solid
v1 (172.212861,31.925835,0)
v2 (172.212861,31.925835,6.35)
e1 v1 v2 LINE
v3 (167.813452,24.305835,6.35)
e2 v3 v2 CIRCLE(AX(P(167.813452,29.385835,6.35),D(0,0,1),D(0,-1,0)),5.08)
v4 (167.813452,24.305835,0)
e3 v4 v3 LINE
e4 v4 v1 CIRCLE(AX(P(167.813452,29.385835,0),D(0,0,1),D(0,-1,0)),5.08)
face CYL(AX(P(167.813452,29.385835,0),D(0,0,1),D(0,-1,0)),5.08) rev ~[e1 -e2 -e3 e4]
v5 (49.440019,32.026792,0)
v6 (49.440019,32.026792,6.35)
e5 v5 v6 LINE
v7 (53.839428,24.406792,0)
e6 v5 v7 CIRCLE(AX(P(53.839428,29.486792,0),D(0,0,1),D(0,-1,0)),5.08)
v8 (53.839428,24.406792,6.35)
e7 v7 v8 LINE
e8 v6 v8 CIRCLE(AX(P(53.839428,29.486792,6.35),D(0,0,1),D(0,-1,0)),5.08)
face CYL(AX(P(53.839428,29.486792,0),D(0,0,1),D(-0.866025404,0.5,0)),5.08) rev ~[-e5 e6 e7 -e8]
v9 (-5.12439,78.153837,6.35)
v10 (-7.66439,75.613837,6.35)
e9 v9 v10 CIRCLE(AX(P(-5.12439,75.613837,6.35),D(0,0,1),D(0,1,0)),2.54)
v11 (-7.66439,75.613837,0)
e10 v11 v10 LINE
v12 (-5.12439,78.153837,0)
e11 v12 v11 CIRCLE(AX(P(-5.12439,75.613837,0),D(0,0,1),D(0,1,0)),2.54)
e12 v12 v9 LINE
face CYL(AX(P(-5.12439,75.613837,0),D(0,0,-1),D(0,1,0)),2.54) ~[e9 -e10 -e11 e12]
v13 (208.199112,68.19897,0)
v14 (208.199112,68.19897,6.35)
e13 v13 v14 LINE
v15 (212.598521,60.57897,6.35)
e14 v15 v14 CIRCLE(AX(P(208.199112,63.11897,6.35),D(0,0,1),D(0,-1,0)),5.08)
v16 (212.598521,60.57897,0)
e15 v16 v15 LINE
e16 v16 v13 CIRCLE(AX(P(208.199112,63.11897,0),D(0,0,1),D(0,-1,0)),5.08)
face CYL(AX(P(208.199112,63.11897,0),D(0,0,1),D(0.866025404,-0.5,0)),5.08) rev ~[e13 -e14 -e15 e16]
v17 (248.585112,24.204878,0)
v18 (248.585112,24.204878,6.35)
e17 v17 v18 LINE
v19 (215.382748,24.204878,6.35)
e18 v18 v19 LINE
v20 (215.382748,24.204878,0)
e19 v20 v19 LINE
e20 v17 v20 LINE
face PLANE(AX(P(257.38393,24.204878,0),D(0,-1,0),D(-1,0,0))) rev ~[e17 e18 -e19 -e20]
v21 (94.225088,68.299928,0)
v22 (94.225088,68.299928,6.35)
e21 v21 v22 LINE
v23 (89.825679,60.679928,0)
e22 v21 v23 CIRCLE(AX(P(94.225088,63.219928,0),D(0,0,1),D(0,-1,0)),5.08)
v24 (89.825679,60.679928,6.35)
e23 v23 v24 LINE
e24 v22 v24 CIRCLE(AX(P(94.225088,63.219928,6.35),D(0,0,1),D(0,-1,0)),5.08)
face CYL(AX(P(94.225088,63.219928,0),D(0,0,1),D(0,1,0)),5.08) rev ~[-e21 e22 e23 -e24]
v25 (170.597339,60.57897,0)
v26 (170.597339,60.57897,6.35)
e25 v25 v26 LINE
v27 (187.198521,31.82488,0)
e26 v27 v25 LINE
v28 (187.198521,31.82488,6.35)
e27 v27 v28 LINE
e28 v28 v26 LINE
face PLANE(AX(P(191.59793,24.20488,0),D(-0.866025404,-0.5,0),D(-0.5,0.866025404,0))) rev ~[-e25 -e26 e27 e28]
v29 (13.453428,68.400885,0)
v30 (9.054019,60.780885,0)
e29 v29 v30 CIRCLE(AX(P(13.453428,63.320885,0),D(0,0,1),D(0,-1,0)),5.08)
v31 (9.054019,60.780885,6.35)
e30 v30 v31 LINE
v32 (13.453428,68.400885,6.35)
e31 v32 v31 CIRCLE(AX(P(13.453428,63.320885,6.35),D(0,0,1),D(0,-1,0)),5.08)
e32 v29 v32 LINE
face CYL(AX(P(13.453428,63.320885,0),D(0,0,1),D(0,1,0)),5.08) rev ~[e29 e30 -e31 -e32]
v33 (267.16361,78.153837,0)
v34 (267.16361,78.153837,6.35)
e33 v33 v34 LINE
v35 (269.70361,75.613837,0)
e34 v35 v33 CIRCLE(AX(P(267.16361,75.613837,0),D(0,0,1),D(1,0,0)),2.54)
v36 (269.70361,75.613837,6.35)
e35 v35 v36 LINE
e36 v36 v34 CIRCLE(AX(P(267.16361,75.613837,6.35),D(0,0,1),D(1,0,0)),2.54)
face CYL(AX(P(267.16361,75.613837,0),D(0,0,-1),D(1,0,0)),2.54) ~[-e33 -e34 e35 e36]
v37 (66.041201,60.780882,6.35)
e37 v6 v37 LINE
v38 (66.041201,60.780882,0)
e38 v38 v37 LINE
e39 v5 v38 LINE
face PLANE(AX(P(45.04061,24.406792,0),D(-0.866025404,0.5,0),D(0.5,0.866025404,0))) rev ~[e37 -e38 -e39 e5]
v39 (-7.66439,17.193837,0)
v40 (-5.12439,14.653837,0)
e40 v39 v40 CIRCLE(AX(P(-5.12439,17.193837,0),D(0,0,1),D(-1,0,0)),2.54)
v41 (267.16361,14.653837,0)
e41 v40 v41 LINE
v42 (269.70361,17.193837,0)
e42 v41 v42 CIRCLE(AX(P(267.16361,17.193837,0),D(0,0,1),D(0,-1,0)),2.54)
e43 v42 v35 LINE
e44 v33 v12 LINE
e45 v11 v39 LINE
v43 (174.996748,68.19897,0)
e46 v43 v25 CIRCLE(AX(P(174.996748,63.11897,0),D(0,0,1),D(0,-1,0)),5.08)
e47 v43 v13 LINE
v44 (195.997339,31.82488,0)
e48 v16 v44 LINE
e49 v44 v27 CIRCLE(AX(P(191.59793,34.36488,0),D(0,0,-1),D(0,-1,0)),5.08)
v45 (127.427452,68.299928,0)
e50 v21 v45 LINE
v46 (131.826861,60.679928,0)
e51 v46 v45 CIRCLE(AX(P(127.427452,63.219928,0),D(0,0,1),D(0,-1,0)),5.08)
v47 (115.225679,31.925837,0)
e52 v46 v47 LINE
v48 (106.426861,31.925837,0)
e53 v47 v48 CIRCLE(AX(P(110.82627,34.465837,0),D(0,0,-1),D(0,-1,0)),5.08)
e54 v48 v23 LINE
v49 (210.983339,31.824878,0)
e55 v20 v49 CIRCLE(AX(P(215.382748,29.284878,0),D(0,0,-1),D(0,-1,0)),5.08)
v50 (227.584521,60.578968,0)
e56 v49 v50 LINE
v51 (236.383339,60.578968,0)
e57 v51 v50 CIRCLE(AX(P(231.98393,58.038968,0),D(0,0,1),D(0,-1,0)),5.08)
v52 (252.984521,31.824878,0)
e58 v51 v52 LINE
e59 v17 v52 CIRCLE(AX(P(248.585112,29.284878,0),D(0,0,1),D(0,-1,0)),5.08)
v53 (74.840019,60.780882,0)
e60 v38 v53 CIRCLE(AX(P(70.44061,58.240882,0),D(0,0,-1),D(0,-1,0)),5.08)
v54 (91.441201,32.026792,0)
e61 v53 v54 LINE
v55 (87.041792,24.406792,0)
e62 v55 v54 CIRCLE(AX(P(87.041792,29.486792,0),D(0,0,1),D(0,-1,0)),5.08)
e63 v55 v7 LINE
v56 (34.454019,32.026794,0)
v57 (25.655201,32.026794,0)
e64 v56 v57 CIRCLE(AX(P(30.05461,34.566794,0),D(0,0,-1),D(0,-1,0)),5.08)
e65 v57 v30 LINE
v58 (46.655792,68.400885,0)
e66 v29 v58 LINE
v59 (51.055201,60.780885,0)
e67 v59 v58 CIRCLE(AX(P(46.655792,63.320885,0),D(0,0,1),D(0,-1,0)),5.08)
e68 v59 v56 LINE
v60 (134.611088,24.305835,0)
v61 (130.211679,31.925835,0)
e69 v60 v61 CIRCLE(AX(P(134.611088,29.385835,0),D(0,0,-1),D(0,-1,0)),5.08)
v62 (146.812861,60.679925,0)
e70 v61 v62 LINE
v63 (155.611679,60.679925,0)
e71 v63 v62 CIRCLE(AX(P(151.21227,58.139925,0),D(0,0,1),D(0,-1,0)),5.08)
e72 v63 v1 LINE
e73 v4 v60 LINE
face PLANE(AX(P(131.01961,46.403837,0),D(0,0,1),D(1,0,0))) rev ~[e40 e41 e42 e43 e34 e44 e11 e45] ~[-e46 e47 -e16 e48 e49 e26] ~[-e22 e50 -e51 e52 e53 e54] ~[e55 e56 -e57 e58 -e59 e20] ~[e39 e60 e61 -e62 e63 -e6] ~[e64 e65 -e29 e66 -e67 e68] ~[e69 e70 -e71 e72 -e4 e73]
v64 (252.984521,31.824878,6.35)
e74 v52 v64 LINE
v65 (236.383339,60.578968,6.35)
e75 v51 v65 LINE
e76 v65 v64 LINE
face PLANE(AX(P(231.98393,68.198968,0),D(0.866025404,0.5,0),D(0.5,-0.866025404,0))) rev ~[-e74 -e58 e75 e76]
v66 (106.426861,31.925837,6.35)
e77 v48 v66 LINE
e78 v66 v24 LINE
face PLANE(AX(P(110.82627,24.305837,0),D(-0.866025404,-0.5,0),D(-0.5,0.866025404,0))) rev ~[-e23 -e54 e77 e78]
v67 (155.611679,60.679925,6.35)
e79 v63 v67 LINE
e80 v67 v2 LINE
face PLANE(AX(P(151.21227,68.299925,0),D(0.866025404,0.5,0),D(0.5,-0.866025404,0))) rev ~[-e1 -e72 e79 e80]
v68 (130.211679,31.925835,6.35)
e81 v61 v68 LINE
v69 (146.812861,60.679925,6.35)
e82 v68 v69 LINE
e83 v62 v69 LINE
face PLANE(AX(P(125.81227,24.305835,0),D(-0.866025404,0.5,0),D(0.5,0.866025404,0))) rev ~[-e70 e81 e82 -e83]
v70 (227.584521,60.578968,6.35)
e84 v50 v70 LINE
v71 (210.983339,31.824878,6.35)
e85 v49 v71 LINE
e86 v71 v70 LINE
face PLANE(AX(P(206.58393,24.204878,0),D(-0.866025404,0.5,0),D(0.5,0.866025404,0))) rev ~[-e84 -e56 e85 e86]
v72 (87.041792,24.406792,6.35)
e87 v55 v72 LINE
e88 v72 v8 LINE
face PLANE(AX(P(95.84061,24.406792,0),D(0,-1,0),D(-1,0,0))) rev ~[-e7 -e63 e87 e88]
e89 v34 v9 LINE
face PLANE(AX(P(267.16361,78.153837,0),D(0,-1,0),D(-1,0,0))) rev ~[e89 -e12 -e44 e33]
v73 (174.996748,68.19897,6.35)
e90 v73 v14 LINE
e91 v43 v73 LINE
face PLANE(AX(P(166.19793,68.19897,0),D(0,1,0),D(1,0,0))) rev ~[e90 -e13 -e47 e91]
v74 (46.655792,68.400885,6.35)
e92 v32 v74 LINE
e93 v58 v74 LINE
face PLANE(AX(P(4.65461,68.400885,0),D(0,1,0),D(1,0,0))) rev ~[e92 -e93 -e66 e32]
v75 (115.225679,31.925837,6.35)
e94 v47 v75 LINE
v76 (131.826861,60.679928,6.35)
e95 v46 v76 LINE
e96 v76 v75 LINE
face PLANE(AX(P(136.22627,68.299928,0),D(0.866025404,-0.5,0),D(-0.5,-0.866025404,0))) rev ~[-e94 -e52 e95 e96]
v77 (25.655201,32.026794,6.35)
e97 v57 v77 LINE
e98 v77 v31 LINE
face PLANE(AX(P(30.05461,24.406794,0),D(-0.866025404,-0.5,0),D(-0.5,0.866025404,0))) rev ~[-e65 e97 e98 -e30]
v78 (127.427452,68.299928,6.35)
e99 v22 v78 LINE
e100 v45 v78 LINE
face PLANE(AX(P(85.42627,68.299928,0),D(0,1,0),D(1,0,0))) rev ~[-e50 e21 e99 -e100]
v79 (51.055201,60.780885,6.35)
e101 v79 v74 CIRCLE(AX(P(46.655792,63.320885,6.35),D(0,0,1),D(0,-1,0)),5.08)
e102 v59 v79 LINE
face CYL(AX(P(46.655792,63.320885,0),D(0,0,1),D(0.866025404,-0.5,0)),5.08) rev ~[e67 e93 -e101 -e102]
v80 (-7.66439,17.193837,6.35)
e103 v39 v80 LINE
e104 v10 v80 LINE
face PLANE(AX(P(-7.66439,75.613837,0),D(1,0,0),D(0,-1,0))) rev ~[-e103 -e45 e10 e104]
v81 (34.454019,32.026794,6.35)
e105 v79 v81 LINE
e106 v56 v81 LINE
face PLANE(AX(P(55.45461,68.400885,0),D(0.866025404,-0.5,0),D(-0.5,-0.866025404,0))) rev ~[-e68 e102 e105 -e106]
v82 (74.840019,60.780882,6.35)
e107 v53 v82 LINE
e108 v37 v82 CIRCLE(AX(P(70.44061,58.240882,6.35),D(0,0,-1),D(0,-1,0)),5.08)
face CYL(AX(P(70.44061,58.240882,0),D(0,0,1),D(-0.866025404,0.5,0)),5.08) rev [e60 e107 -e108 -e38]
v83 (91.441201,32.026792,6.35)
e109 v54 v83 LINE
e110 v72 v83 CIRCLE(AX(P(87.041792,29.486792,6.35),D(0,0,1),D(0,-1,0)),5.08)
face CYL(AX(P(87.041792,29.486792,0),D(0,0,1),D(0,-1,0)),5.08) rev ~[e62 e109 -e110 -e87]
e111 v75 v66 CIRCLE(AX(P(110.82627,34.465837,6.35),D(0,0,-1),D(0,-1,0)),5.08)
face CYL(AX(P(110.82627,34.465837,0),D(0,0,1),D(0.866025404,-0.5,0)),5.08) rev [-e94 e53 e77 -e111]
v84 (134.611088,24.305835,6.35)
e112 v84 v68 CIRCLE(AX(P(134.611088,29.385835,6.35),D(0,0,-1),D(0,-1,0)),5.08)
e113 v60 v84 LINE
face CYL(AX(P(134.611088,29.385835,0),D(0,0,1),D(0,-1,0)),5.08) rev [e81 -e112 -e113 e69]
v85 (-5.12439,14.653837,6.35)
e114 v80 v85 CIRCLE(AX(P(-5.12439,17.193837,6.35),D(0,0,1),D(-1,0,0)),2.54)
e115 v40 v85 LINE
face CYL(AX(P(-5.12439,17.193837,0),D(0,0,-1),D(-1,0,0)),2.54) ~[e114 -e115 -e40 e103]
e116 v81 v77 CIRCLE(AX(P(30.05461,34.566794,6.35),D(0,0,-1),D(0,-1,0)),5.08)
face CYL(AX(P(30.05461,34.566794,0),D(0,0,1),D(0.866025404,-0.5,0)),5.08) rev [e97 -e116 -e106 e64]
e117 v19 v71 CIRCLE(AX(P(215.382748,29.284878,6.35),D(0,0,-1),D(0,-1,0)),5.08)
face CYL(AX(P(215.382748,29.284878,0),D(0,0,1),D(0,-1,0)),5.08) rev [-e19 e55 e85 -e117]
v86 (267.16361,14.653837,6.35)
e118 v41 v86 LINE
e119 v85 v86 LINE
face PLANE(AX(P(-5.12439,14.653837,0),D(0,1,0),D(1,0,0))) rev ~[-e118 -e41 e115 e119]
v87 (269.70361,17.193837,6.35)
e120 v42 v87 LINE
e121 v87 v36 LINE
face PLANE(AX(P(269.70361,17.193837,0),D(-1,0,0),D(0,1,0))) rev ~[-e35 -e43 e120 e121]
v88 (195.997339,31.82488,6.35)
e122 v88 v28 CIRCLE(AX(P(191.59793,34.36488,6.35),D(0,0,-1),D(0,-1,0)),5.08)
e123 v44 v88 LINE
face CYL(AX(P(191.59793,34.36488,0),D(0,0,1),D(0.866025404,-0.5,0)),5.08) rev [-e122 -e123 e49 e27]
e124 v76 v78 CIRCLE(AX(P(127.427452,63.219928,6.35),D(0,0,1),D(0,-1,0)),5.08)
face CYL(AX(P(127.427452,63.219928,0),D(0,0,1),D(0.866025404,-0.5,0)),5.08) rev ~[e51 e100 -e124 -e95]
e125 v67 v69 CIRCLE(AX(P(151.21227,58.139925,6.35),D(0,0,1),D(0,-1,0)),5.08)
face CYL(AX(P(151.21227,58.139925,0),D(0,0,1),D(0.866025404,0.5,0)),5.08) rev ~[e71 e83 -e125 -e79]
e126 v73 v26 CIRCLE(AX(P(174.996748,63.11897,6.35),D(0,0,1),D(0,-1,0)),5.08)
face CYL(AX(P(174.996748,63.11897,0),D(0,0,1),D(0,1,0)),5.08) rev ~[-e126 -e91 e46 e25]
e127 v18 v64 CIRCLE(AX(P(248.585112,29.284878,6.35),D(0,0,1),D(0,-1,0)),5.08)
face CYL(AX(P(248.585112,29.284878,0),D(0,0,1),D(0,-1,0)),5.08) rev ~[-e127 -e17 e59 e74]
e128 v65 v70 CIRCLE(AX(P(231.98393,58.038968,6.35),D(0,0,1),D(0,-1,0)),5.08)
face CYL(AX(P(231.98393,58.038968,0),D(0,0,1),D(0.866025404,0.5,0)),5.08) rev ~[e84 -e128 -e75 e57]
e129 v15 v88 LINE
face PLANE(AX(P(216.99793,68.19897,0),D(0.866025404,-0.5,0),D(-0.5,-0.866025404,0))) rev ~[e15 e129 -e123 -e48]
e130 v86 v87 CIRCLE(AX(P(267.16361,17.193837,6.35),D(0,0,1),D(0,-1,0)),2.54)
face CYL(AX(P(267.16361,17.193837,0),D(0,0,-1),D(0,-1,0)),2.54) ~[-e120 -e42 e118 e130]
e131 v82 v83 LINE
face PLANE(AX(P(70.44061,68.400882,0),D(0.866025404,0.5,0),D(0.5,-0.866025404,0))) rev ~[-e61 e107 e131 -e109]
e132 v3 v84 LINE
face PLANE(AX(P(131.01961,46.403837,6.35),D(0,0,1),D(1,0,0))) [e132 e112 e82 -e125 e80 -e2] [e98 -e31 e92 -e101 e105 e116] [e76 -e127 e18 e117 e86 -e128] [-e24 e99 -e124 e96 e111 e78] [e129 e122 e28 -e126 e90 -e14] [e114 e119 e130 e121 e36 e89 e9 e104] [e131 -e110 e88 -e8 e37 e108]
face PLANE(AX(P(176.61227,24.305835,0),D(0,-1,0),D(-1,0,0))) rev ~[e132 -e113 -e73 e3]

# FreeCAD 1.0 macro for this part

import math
import FreeCAD as App
import Part
import Sketcher
from FreeCAD import Vector
Q = App.Units.Quantity


def edges_at(feature, points):
    """Names of the edges that pass closest to the given points."""
    edges = feature.Shape.Edges
    near = lambda p: min(range(len(edges)), key=lambda i: edges[i].distToShape(Part.Vertex(*p))[0])
    return sorted({f"Edge{near(p) + 1}" for p in points})

doc = App.newDocument("Part")
body = doc.addObject("PartDesign::Body", "Body")

sketch1 = body.newObject("Sketcher::SketchObject", "Sketch")
sketch1.AttachmentSupport = (doc.getObject("XY_Plane"), [""])
sketch1.MapMode = "FlatFace"
sketch1.addGeometry([
    Part.LineSegment(Vector(-5.1, 14.7, 0), Vector(267.2, 14.7, 0)),
    Part.ArcOfCircle(Part.Circle(Vector(267.2, 17.2, 0), Vector(0, 0, 1), 2.5), math.radians(-90), math.radians(0)),
    Part.LineSegment(Vector(269.7, 17.2, 0), Vector(269.7, 75.6, 0)),
    Part.ArcOfCircle(Part.Circle(Vector(267.2, 75.6, 0), Vector(0, 0, 1), 2.5), math.radians(0), math.radians(90)),
    Part.LineSegment(Vector(267.2, 78.2, 0), Vector(-5.1, 78.2, 0)),
    Part.ArcOfCircle(Part.Circle(Vector(-5.1, 75.6, 0), Vector(0, 0, 1), 2.5), math.radians(90), math.radians(180)),
    Part.LineSegment(Vector(-7.7, 75.6, 0), Vector(-7.7, 17.2, 0)),
    Part.ArcOfCircle(Part.Circle(Vector(-5.1, 17.2, 0), Vector(0, 0, 1), 2.5), math.radians(180), math.radians(270)),
    Part.LineSegment(Vector(176.6, 24.3, 0), Vector(125.8, 24.3, 0)),
    Part.LineSegment(Vector(125.8, 24.3, 0), Vector(151.2, 68.3, 0)),
    Part.LineSegment(Vector(151.2, 68.3, 0), Vector(176.6, 24.3, 0)),
    Part.LineSegment(Vector(217, 68.2, 0), Vector(191.6, 24.2, 0)),
    Part.LineSegment(Vector(191.6, 24.2, 0), Vector(166.2, 68.2, 0)),
    Part.LineSegment(Vector(166.2, 68.2, 0), Vector(217, 68.2, 0)),
    Part.LineSegment(Vector(257.4, 24.2, 0), Vector(206.6, 24.2, 0)),
    Part.LineSegment(Vector(206.6, 24.2, 0), Vector(232, 68.2, 0)),
    Part.LineSegment(Vector(232, 68.2, 0), Vector(257.4, 24.2, 0)),
    Part.LineSegment(Vector(55.5, 68.4, 0), Vector(30.1, 24.4, 0)),
    Part.LineSegment(Vector(30.1, 24.4, 0), Vector(4.7, 68.4, 0)),
    Part.LineSegment(Vector(4.7, 68.4, 0), Vector(55.5, 68.4, 0)),
    Part.LineSegment(Vector(45, 24.4, 0), Vector(70.4, 68.4, 0)),
    Part.LineSegment(Vector(70.4, 68.4, 0), Vector(95.8, 24.4, 0)),
    Part.LineSegment(Vector(95.8, 24.4, 0), Vector(45, 24.4, 0)),
    Part.LineSegment(Vector(136.2, 68.3, 0), Vector(110.8, 24.3, 0)),
    Part.LineSegment(Vector(110.8, 24.3, 0), Vector(85.4, 68.3, 0)),
    Part.LineSegment(Vector(85.4, 68.3, 0), Vector(136.2, 68.3, 0)),
], False)
sketch1.addConstraint([
    Sketcher.Constraint("Tangent", 0, 2, 1, 1),
    Sketcher.Constraint("Tangent", 1, 2, 2, 1),
    Sketcher.Constraint("Tangent", 2, 2, 3, 1),
    Sketcher.Constraint("Tangent", 3, 2, 4, 1),
    Sketcher.Constraint("Tangent", 4, 2, 5, 1),
    Sketcher.Constraint("Tangent", 5, 2, 6, 1),
    Sketcher.Constraint("Tangent", 6, 2, 7, 1),
    Sketcher.Constraint("Tangent", 7, 2, 0, 1),
    Sketcher.Constraint("Coincident", 8, 2, 9, 1),
    Sketcher.Constraint("Coincident", 9, 2, 10, 1),
    Sketcher.Constraint("Coincident", 10, 2, 8, 1),
    Sketcher.Constraint("Coincident", 11, 2, 12, 1),
    Sketcher.Constraint("Coincident", 12, 2, 13, 1),
    Sketcher.Constraint("Coincident", 13, 2, 11, 1),
    Sketcher.Constraint("Coincident", 14, 2, 15, 1),
    Sketcher.Constraint("Coincident", 15, 2, 16, 1),
    Sketcher.Constraint("Coincident", 16, 2, 14, 1),
    Sketcher.Constraint("Coincident", 17, 2, 18, 1),
    Sketcher.Constraint("Coincident", 18, 2, 19, 1),
    Sketcher.Constraint("Coincident", 19, 2, 17, 1),
    Sketcher.Constraint("Coincident", 20, 2, 21, 1),
    Sketcher.Constraint("Coincident", 21, 2, 22, 1),
    Sketcher.Constraint("Coincident", 22, 2, 20, 1),
    Sketcher.Constraint("Coincident", 23, 2, 24, 1),
    Sketcher.Constraint("Coincident", 24, 2, 25, 1),
    Sketcher.Constraint("Coincident", 25, 2, 23, 1),
    Sketcher.Constraint("Horizontal", 0),
    Sketcher.Constraint("Vertical", 2),
    Sketcher.Constraint("Horizontal", 4),
    Sketcher.Constraint("Vertical", 6),
    Sketcher.Constraint("Horizontal", 8),
    Sketcher.Constraint("Horizontal", 13),
    Sketcher.Constraint("Horizontal", 14),
    Sketcher.Constraint("Horizontal", 19),
    Sketcher.Constraint("Horizontal", 22),
    Sketcher.Constraint("Horizontal", 25),
    Sketcher.Constraint("Equal", 1, 3),
    Sketcher.Constraint("Equal", 3, 5),
    Sketcher.Constraint("Equal", 5, 7),
    Sketcher.Constraint("Parallel", 9, 11),
    Sketcher.Constraint("Parallel", 10, 12),
    Sketcher.Constraint("Parallel", 11, 15),
    Sketcher.Constraint("Parallel", 12, 16),
    Sketcher.Constraint("Parallel", 15, 17),
    Sketcher.Constraint("Parallel", 16, 18),
    Sketcher.Constraint("Parallel", 17, 20),
    Sketcher.Constraint("Parallel", 18, 21),
    Sketcher.Constraint("Parallel", 20, 23),
    Sketcher.Constraint("Parallel", 21, 24),
    Sketcher.Constraint("Equal", 8, 13),
    Sketcher.Constraint("Equal", 13, 14),
    Sketcher.Constraint("Equal", 14, 19),
    Sketcher.Constraint("Equal", 19, 22),
    Sketcher.Constraint("Equal", 22, 25),
    Sketcher.Constraint("Equal", 9, 10),
    Sketcher.Constraint("Radius", 1, Q("0.1 in")),
    Sketcher.Constraint("DistanceX", 8, 2, 8, 1, Q("2 in")),
    Sketcher.Constraint("Distance", 9, Q("2 in")),
    Sketcher.Constraint("DistanceY", 2, 1, 2, 2, Q("2.3 in")),
    Sketcher.Constraint("DistanceX", 0, 1, 0, 2, Q("10.72 in")),
    Sketcher.Constraint("DistanceY", 7, 3, 8, 2, Q("0.2799999 in")),
    Sketcher.Constraint("DistanceX", 11, 2, 14, 2, Q("0.59 in")),
    Sketcher.Constraint("DistanceX", 19, 2, 20, 2, Q("0.59 in")),
    Sketcher.Constraint("DistanceX", 23, 2, 8, 2, Q("0.59 in")),
    Sketcher.Constraint("DistanceX", 7, 3, 17, 2, Q("1.385 in")),
    Sketcher.Constraint("DistanceX", -1, 1, 1, 3, 267.16361),
    Sketcher.Constraint("DistanceX", -1, 1, 8, 2, 125.81227),
    Sketcher.Constraint("DistanceX", -1, 1, 11, 2, 191.59793),
    Sketcher.Constraint("DistanceY", -1, 1, 11, 2, 24.20488),
    Sketcher.Constraint("DistanceY", -1, 1, 15, 2, 68.198968),
    Sketcher.Constraint("DistanceY", -1, 1, 21, 2, 24.406792),
    Sketcher.Constraint("DistanceY", 1, 3, 14, 2, 7.01104),
    Sketcher.Constraint("DistanceY", 17, 2, 20, 2, 43.994088),
    Sketcher.Constraint("DistanceY", 23, 2, 9, 2, 43.994088),
])
pad1 = body.newObject("PartDesign::Pad", "Pad")
pad1.Profile = sketch1
pad1.Length = Q("0.25 in")
doc.recompute()

fillet = body.newObject("PartDesign::Fillet", "Fillet")
fillet.Base = (pad1, edges_at(pad1, [
    (257.384, 24.205, 3.175),
    (231.984, 68.199, 3.175),
    (206.584, 24.205, 3.175),
    (176.612, 24.306, 3.175),
    (151.212, 68.3, 3.175),
    (125.812, 24.306, 3.175),
    (4.655, 68.401, 3.175),
    (30.055, 24.407, 3.175),
    (55.455, 68.401, 3.175),
    (95.841, 24.407, 3.175),
    (70.441, 68.401, 3.175),
    (45.041, 24.407, 3.175),
    (85.426, 68.3, 3.175),
    (110.826, 24.306, 3.175),
    (136.226, 68.3, 3.175),
    (166.198, 68.199, 3.175),
    (191.598, 24.205, 3.175),
    (216.998, 68.199, 3.175),
]))
fillet.Radius = Q("0.2 in")

doc.recompute()
